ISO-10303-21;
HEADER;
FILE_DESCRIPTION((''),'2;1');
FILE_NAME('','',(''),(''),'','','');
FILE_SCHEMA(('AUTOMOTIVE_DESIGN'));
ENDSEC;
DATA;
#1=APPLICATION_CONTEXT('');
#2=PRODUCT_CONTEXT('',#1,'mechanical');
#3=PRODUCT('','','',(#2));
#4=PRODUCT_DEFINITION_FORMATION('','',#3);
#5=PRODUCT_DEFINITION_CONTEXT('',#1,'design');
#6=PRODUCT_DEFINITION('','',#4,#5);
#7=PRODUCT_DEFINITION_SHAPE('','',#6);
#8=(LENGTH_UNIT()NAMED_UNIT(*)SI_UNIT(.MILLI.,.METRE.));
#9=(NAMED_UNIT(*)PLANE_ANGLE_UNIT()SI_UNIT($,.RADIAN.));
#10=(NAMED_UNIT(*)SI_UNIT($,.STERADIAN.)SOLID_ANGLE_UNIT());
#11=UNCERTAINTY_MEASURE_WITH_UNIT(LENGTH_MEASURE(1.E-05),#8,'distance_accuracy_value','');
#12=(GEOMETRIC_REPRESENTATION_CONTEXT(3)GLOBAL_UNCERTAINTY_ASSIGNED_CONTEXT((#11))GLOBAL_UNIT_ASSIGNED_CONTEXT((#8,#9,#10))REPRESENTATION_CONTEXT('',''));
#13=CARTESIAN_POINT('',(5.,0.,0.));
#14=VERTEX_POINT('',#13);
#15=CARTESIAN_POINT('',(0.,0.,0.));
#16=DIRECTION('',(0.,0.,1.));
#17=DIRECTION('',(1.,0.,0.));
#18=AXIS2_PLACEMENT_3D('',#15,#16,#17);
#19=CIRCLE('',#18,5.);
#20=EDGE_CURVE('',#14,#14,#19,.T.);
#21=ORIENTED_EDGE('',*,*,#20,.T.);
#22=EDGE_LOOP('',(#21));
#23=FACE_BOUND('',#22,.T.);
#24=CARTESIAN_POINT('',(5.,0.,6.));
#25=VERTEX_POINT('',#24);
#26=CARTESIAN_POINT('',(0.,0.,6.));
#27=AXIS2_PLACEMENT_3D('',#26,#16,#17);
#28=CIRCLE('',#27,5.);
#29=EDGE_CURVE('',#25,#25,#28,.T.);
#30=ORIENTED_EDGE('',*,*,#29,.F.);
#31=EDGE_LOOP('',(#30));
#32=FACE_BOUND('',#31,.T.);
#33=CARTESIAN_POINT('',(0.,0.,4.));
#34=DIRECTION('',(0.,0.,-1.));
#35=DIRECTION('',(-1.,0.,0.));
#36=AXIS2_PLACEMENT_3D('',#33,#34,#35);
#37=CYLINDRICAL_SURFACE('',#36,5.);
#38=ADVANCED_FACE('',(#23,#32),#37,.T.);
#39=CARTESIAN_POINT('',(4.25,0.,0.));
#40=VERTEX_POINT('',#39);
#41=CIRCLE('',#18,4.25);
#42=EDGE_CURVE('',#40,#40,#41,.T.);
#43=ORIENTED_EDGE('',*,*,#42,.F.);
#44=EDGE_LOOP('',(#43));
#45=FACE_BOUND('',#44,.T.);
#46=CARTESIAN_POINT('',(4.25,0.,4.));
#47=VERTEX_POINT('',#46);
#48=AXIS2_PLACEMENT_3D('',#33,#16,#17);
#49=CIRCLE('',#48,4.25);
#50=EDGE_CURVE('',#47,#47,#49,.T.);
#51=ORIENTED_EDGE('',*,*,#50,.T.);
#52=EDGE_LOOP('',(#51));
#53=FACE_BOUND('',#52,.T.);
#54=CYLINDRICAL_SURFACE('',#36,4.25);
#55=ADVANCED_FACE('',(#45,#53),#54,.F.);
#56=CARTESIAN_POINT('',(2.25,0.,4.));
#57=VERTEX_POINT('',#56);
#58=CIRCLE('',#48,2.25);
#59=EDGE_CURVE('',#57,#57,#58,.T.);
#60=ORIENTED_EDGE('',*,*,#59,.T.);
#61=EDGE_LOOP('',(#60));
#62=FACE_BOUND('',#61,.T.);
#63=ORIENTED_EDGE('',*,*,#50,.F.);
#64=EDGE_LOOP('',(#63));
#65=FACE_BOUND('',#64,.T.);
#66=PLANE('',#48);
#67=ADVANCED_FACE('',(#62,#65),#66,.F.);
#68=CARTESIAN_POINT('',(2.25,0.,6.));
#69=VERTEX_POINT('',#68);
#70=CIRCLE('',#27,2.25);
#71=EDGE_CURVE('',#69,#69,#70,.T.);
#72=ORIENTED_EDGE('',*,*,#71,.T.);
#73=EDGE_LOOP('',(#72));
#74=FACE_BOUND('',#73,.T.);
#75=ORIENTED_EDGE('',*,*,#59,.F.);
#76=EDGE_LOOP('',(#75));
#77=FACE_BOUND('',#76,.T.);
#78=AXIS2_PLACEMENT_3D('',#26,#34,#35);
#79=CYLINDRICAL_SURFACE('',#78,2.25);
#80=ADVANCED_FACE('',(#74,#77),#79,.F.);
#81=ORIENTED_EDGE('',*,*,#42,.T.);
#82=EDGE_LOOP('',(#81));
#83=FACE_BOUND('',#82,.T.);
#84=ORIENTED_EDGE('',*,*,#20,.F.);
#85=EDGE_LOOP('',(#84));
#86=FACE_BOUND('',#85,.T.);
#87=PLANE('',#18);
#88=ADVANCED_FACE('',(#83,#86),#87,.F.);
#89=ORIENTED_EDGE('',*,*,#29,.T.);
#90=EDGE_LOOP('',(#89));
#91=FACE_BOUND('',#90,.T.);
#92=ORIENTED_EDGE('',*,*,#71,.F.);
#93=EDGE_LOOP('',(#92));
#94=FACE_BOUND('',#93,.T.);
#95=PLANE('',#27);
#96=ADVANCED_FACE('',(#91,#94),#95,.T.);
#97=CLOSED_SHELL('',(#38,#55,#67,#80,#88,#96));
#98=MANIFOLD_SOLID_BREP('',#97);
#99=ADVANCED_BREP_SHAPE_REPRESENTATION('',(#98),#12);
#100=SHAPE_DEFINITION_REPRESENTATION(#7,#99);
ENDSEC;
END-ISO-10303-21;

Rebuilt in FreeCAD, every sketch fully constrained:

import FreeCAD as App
import Part
import Sketcher
from FreeCAD import Vector
Q = App.Units.Quantity

doc = App.newDocument("Part")
body = doc.addObject("PartDesign::Body", "Body")

sketch1 = body.newObject("Sketcher::SketchObject", "Sketch")
sketch1.AttachmentSupport = (doc.getObject("XY_Plane"), [""])
sketch1.MapMode = "FlatFace"
sketch1.addGeometry(Part.Circle(Vector(0, 0, 0), Vector(0, 0, 1), 5), False)
sketch1.addGeometry(Part.Circle(Vector(0, 0, 0), Vector(0, 0, 1), 4.25), False)
sketch1.addConstraint(Sketcher.Constraint("Coincident", 0, 3, -1, 1))
sketch1.addConstraint(Sketcher.Constraint("Coincident", 1, 3, -1, 1))
sketch1.addConstraint(Sketcher.Constraint("Diameter", 0, Q("10 mm")))
sketch1.addConstraint(Sketcher.Constraint("Diameter", 1, Q("8.5 mm")))
pad1 = body.newObject("PartDesign::Pad", "Pad")
pad1.Profile = sketch1
pad1.Length = 4

sketch2 = body.newObject("Sketcher::SketchObject", "Sketch001")
sketch2.AttachmentSupport = (doc.getObject("XY_Plane"), [""])
sketch2.MapMode = "FlatFace"
sketch2.AttachmentOffset = App.Placement(Vector(0, 0, 4), App.Rotation())
sketch2.addGeometry(Part.Circle(Vector(0, 0, 0), Vector(0, 0, 1), 5), False)
sketch2.addGeometry(Part.Circle(Vector(0, 0, 0), Vector(0, 0, 1), 2.25), False)
sketch2.addConstraint(Sketcher.Constraint("Coincident", 0, 3, -1, 1))
sketch2.addConstraint(Sketcher.Constraint("Coincident", 1, 3, -1, 1))
sketch2.addConstraint(Sketcher.Constraint("Diameter", 0, Q("10 mm")))
sketch2.addConstraint(Sketcher.Constraint("Diameter", 1, Q("4.5 mm")))
pad2 = body.newObject("PartDesign::Pad", "Pad001")
pad2.Profile = sketch2
pad2.Length = 2

doc.recompute()
